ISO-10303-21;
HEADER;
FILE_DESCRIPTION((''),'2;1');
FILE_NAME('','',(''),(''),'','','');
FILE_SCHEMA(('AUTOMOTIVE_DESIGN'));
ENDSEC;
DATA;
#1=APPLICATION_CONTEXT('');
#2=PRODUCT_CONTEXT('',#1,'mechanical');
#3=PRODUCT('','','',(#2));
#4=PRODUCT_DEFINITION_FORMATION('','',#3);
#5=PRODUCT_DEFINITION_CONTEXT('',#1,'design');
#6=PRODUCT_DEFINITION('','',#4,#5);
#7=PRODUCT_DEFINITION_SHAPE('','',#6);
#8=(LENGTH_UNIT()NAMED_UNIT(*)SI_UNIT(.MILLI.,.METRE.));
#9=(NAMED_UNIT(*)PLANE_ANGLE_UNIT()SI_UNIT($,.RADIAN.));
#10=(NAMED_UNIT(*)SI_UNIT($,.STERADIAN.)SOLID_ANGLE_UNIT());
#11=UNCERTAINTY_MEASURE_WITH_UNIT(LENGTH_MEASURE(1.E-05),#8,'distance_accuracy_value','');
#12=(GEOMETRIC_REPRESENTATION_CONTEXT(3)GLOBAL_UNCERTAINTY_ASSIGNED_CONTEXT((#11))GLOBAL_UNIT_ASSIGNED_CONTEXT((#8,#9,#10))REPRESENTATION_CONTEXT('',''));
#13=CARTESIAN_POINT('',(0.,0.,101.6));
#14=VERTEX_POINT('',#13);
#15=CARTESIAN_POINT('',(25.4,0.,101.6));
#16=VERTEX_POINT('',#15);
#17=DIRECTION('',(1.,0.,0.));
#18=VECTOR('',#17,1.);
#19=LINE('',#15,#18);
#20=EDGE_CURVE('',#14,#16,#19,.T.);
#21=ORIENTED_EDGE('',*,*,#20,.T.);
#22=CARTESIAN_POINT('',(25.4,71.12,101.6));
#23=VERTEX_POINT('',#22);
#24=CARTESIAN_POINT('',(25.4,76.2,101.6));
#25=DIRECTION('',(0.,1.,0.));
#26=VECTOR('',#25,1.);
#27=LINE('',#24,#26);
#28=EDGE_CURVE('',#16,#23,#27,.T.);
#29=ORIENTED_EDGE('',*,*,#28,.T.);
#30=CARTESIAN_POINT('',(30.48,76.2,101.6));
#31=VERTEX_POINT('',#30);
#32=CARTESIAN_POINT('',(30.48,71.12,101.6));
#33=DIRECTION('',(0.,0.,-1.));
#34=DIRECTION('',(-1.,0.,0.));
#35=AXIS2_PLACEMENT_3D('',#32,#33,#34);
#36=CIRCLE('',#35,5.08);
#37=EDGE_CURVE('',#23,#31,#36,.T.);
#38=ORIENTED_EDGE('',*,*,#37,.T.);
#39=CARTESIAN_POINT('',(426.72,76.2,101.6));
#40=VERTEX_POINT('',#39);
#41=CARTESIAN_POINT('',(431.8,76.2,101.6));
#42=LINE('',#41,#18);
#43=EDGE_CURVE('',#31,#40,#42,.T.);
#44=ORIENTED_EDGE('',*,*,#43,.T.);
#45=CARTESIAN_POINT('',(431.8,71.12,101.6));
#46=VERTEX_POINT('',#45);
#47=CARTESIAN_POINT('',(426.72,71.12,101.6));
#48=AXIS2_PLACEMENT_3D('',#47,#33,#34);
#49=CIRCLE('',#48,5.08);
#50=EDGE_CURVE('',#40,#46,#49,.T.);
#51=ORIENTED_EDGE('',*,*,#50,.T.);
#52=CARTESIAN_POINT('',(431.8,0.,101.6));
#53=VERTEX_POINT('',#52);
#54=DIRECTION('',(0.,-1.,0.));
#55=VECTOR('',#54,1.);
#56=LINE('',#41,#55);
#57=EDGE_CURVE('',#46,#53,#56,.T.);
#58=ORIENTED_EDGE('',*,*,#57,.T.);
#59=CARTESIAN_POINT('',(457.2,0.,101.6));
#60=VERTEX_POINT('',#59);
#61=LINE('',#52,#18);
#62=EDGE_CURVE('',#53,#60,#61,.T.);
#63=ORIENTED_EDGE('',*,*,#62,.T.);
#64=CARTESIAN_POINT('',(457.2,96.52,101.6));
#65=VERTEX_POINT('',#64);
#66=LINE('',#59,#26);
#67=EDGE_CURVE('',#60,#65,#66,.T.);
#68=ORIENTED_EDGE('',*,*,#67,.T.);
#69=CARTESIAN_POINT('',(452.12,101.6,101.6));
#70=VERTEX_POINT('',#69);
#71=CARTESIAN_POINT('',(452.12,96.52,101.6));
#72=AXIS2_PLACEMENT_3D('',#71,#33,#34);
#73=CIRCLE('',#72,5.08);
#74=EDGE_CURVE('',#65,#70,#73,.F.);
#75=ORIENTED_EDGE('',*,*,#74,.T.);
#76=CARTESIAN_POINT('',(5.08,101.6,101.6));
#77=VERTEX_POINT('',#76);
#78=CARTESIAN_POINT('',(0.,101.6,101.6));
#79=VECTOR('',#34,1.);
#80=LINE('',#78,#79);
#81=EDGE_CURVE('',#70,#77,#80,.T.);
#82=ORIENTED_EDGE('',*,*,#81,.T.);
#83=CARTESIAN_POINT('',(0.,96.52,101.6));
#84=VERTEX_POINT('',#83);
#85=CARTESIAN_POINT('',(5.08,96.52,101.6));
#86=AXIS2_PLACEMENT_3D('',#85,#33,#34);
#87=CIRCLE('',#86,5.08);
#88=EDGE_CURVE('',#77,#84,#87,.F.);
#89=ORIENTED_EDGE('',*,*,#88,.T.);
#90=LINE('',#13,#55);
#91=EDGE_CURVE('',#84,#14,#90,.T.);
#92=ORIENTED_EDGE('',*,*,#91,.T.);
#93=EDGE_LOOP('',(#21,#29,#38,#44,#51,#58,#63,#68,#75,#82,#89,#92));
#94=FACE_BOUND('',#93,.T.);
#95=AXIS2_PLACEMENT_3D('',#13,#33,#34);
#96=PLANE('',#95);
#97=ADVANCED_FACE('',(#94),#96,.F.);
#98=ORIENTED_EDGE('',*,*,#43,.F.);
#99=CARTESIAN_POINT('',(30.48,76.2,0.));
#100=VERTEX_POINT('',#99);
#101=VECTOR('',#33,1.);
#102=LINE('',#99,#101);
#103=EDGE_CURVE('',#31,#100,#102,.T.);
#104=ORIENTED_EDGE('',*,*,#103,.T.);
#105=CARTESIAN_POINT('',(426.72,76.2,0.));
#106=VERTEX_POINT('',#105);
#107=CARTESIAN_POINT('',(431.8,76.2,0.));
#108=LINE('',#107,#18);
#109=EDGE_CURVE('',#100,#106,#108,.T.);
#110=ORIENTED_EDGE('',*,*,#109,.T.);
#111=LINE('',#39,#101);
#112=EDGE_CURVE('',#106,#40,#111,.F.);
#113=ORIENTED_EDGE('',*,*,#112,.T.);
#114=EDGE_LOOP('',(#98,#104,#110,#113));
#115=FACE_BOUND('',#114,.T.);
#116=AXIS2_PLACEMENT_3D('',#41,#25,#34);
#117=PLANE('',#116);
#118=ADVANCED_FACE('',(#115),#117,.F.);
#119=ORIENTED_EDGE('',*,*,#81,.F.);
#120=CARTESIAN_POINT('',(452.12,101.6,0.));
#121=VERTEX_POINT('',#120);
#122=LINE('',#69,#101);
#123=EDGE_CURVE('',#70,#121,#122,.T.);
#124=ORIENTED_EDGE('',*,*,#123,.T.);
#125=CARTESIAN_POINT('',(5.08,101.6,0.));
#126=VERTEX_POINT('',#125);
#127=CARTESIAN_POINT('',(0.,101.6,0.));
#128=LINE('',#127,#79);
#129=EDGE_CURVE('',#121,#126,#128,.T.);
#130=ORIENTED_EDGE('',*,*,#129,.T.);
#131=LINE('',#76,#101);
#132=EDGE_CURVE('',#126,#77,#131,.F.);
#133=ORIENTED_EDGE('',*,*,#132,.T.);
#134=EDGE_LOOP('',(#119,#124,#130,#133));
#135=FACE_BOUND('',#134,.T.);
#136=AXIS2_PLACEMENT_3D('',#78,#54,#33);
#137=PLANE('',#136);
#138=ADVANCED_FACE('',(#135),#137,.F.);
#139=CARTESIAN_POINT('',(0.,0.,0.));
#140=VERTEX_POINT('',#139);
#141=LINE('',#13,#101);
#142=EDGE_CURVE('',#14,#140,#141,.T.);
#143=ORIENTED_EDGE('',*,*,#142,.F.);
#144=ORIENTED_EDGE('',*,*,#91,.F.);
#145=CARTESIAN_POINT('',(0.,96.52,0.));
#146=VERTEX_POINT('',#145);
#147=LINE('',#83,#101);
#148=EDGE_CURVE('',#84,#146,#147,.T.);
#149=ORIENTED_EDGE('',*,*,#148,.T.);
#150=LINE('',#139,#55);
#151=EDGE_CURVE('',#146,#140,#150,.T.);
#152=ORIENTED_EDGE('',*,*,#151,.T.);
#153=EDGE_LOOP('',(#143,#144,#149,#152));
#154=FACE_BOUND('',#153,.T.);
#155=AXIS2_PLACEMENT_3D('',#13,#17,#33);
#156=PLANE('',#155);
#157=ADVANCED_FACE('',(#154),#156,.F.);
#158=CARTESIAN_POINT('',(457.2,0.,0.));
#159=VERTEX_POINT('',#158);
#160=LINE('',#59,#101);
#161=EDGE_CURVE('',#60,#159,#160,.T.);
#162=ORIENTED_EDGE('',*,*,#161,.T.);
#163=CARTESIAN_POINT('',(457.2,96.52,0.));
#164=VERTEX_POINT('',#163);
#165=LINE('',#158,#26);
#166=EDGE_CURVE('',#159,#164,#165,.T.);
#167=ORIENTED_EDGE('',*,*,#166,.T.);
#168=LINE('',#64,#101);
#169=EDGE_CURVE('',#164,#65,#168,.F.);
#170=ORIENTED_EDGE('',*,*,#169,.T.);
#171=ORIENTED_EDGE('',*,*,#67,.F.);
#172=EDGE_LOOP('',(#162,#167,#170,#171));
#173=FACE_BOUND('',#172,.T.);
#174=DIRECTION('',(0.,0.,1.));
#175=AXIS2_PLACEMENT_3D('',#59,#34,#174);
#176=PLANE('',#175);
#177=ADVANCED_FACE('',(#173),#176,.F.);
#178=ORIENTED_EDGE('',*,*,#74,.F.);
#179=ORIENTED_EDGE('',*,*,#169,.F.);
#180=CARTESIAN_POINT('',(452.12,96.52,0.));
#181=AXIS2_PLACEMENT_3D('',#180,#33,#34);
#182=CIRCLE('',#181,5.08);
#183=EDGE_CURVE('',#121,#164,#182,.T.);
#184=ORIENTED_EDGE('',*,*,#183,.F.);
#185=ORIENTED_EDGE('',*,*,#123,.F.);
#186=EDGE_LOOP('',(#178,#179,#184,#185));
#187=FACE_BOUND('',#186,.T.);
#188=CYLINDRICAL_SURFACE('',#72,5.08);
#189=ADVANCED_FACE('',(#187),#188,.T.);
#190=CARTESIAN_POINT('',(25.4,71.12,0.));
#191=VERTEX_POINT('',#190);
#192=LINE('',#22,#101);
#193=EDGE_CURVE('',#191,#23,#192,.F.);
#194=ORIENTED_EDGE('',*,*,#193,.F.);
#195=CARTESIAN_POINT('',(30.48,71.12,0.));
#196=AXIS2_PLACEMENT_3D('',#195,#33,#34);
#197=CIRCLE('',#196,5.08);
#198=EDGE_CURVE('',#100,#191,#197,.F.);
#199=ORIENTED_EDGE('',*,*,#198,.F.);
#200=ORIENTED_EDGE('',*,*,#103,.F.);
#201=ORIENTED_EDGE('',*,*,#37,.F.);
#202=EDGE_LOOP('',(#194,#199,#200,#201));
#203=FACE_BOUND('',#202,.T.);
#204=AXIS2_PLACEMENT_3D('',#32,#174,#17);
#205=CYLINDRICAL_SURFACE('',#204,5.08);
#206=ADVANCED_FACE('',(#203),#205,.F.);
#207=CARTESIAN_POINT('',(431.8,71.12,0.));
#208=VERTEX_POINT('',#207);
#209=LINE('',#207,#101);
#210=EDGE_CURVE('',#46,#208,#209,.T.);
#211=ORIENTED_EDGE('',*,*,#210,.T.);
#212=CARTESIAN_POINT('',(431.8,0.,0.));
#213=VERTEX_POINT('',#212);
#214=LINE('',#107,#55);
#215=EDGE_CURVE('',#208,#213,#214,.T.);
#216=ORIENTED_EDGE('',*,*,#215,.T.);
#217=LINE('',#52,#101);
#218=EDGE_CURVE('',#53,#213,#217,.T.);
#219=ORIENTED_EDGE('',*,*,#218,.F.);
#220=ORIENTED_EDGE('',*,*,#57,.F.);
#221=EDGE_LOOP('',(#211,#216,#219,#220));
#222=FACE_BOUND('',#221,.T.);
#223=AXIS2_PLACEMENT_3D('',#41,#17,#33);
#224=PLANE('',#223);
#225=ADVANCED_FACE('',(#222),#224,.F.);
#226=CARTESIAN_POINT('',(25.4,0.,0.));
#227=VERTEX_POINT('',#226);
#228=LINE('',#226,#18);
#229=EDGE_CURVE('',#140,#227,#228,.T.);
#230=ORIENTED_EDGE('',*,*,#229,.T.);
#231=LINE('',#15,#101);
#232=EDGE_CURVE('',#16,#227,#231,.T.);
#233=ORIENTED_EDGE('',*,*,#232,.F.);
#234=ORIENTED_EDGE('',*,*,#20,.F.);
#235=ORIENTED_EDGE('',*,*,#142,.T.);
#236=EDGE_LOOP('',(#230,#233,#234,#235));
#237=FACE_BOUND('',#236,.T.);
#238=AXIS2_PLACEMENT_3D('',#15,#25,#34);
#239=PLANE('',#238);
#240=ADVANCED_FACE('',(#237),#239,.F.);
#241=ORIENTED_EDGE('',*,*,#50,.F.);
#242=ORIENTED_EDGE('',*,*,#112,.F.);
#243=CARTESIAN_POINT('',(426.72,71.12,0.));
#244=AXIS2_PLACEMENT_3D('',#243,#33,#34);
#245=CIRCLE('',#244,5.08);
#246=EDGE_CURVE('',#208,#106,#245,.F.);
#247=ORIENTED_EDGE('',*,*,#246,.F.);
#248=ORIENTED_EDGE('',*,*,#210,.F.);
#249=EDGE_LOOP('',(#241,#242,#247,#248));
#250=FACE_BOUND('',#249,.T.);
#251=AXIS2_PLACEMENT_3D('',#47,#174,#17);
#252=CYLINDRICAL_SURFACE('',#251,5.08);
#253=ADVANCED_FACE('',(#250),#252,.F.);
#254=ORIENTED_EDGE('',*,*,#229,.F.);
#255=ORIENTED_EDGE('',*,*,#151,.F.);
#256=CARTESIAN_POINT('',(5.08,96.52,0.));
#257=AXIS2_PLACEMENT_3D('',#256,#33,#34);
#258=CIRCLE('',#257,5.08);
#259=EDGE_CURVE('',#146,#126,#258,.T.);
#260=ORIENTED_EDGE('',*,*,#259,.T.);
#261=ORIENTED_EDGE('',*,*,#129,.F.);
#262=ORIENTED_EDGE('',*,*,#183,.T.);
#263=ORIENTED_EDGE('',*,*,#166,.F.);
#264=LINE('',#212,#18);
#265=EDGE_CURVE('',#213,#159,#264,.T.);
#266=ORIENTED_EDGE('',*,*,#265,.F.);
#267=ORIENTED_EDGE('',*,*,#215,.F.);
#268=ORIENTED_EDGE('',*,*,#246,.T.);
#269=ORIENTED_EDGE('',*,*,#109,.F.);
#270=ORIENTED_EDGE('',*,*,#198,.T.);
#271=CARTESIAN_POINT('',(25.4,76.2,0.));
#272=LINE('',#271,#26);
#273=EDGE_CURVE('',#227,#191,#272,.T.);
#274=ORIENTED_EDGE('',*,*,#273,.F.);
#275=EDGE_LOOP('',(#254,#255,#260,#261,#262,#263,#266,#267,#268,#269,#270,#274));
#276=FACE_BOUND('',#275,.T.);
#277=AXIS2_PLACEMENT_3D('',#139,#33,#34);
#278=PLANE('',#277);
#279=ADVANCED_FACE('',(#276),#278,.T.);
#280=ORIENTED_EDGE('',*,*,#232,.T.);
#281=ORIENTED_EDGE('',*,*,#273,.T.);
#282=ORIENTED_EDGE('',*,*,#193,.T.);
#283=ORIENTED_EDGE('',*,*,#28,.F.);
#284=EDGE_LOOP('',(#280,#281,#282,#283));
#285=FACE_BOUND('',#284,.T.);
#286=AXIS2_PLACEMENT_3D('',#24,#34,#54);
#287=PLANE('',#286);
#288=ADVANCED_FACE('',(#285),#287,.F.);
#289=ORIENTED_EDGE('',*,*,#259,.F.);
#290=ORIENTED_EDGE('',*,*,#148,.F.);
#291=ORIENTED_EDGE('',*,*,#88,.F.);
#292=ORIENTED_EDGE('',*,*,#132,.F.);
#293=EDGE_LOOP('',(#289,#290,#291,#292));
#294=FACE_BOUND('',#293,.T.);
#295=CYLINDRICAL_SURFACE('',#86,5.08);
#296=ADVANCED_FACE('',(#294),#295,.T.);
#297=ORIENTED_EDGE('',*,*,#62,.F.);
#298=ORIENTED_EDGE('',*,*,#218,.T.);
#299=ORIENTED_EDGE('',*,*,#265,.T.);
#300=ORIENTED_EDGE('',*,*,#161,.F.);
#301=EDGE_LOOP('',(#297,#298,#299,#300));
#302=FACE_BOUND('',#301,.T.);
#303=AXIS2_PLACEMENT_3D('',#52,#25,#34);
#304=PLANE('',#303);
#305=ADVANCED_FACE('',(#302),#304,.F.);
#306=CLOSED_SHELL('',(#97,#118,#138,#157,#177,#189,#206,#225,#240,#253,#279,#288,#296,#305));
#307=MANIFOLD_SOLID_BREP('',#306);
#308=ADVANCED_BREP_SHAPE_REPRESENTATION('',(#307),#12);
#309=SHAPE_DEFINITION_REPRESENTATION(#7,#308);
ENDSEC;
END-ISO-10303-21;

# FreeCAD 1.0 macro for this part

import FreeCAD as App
import Part
import Sketcher
from FreeCAD import Vector
Q = App.Units.Quantity


def edges_at(feature, points):
    """Names of the edges that pass closest to the given points."""
    edges = feature.Shape.Edges
    near = lambda p: min(range(len(edges)), key=lambda i: edges[i].distToShape(Part.Vertex(*p))[0])
    return sorted({f"Edge{near(p) + 1}" for p in points})


def add_polygon(sketch, points):
    """Adds a closed chain of lines whose ends are joined by coincident constraints."""
    first, n = sketch.GeometryCount, len(points)
    for a, b in zip(points, points[1:] + points[:1]):
        sketch.addGeometry(Part.LineSegment(App.Vector(*a, 0), App.Vector(*b, 0)), False)
    for i in range(n):
        sketch.addConstraint(Sketcher.Constraint("Coincident", first + i, 2, first + (i + 1) % n, 1))

doc = App.newDocument("Part")
body = doc.addObject("PartDesign::Body", "Body")

# Sketch on XY plane
sketch1 = body.newObject("Sketcher::SketchObject", "Sketch")
sketch1.AttachmentSupport = (doc.getObject("XY_Plane"), [""])
sketch1.MapMode = "FlatFace"
add_polygon(sketch1, [(0, 102), (0, 0), (25, 0), (25, 76), (432, 76), (432, 0), (457, 0), (457, 102)])  # lines 0-7
sketch1.addConstraint(Sketcher.Constraint("Vertical", 0))
sketch1.addConstraint(Sketcher.Constraint("Horizontal", 1))
sketch1.addConstraint(Sketcher.Constraint("Vertical", 2))
sketch1.addConstraint(Sketcher.Constraint("Horizontal", 3))
sketch1.addConstraint(Sketcher.Constraint("Vertical", 4))
sketch1.addConstraint(Sketcher.Constraint("Horizontal", 5))
sketch1.addConstraint(Sketcher.Constraint("Vertical", 6))
sketch1.addConstraint(Sketcher.Constraint("Horizontal", 7))
sketch1.addConstraint(Sketcher.Constraint("Coincident", 0, 2, -1, 1))
sketch1.addConstraint(Sketcher.Constraint("PointOnObject", 4, 2, -1))
sketch1.addConstraint(Sketcher.Constraint("Equal", 1, 5))
sketch1.addConstraint(Sketcher.Constraint("DistanceX", 1, 1, 1, 2, Q("1 in")))
sketch1.addConstraint(Sketcher.Constraint("DistanceX", 3, 1, 3, 2, Q("16 in")))
sketch1.addConstraint(Sketcher.Constraint("DistanceY", 0, 2, 0, 1, Q("4 in")))
sketch1.addConstraint(Sketcher.Constraint("DistanceY", 2, 1, 2, 2, Q("3 in")))
pad1 = body.newObject("PartDesign::Pad", "Pad")
pad1.Profile = sketch1
pad1.Length = Q("4 in")
doc.recompute()

fillet = body.newObject("PartDesign::Fillet", "Fillet")
fillet.Base = (pad1, edges_at(pad1, [
    (0, 101.6, 50.8),
    (457.2, 101.6, 50.8),
    (431.8, 76.2, 50.8),
    (25.4, 76.2, 50.8),
]))
fillet.Radius = Q("0.2 in")

doc.recompute()
